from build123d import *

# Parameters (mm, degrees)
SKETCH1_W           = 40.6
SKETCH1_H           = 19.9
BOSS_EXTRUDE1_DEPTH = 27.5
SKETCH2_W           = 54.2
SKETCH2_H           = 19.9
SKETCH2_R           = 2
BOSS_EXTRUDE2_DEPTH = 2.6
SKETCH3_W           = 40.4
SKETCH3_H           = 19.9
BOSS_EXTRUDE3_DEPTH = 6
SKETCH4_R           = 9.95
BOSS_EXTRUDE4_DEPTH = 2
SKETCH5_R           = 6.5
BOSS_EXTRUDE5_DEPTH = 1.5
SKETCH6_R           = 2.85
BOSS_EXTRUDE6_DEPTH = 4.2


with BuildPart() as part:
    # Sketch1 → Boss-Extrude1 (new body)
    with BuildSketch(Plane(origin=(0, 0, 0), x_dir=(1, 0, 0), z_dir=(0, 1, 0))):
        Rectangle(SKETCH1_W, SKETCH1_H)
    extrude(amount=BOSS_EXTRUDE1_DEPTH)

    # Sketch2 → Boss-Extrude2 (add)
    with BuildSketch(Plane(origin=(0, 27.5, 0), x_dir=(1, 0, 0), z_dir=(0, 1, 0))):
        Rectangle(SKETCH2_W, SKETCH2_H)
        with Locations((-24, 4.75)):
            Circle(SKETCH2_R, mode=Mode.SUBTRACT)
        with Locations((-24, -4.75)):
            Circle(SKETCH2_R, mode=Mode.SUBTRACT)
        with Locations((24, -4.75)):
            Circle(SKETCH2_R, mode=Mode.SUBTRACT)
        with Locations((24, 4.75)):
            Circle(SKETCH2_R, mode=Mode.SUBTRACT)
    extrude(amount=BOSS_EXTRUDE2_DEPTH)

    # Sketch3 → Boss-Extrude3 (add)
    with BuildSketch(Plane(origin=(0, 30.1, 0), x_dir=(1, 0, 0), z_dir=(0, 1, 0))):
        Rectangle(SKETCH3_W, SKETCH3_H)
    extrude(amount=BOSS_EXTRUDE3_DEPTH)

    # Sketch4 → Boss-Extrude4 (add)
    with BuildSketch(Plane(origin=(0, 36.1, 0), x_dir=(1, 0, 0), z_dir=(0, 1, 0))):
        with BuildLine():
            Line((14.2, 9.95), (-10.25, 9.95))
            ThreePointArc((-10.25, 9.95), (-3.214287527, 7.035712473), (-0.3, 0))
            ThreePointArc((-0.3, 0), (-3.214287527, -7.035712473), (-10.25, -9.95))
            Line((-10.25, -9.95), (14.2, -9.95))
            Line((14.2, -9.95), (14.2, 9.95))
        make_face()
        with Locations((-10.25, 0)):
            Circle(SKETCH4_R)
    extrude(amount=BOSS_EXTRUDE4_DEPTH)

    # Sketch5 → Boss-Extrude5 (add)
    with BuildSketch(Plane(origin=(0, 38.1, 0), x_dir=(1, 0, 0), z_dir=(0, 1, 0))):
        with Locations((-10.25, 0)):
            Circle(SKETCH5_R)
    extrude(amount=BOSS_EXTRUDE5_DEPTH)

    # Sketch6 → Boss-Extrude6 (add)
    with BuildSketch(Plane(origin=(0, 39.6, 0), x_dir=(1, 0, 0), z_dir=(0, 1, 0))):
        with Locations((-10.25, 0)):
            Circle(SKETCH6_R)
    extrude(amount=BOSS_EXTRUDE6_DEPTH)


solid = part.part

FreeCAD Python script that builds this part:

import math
import FreeCAD as App
import Part
import Sketcher

V = App.Vector
Q = App.Units.Quantity


def add_polygon(sketch, points):
    """Adds a closed chain of lines whose ends are joined by coincident constraints."""
    first, n = sketch.GeometryCount, len(points)
    for a, b in zip(points, points[1:] + points[:1]):
        sketch.addGeometry(Part.LineSegment(App.Vector(*a, 0), App.Vector(*b, 0)), False)
    for i in range(n):
        sketch.addConstraint(Sketcher.Constraint("Coincident", first + i, 2, first + (i + 1) % n, 1))

doc = App.newDocument("Part")
body = doc.addObject("PartDesign::Body", "Body")

sketch1 = doc.addObject("Sketcher::SketchObject", "Sketch")
body.addObject(sketch1)
sketch1.AttachmentSupport = (doc.XZ_Plane, [""])
sketch1.MapMode = "FlatFace"
add_polygon(sketch1, [(-20, -10), (-20, 10), (20, 10), (20, -10)])
sketch1.addConstraint([
    Sketcher.Constraint("Vertical", 0),
    Sketcher.Constraint("Horizontal", 1),
    Sketcher.Constraint("Vertical", 2),
    Sketcher.Constraint("Horizontal", 3),
    Sketcher.Constraint("Symmetric", 0, 2, 2, 2, -1, 1),
    Sketcher.Constraint("DistanceX", 1, 1, 1, 2, Q("40.6 mm")),
    Sketcher.Constraint("DistanceY", 0, 1, 0, 2, Q("19.9 mm")),
])
pad1 = doc.addObject("PartDesign::Pad", "Pad")
body.addObject(pad1)
pad1.Profile = sketch1
pad1.Length = 27.5
pad1.Reversed = True

sketch2 = doc.addObject("Sketcher::SketchObject", "Sketch001")
body.addObject(sketch2)
sketch2.AttachmentSupport = (doc.XZ_Plane, [""])
sketch2.MapMode = "FlatFace"
sketch2.AttachmentOffset = App.Placement(V(0, 0, -27.5), App.Rotation())
add_polygon(sketch2, [(-27.1, -9.9), (-27.1, 9.9), (27.1, 9.9), (27.1, -9.9)])
sketch2.addGeometry(Part.Circle(V(-24, 4.8, 0), V(0, 0, 1), 2), False)
sketch2.addGeometry(Part.Circle(V(24, 4.8, 0), V(0, 0, 1), 2), False)
sketch2.addGeometry(Part.Circle(V(-24, -4.8, 0), V(0, 0, 1), 2), False)
sketch2.addGeometry(Part.Circle(V(24, -4.8, 0), V(0, 0, 1), 2), False)
sketch2.addConstraint([
    Sketcher.Constraint("Vertical", 0),
    Sketcher.Constraint("Horizontal", 1),
    Sketcher.Constraint("Vertical", 2),
    Sketcher.Constraint("Horizontal", 3),
    Sketcher.Constraint("Equal", 4, 5),
    Sketcher.Constraint("Equal", 5, 6),
    Sketcher.Constraint("Equal", 6, 7),
    Sketcher.Constraint("Symmetric", 5, 3, 6, 3, -1, 1),
    Sketcher.Constraint("Symmetric", 4, 3, 7, 3, -1, 1),
    Sketcher.Constraint("Symmetric", 0, 2, 2, 2, -1, 1),
    Sketcher.Constraint("Symmetric", 4, 3, 5, 3, -2),
    Sketcher.Constraint("Diameter", 4, Q("4 mm")),
    Sketcher.Constraint("DistanceX", 1, 1, 1, 2, Q("54.2 mm")),
    Sketcher.Constraint("DistanceY", 0, 1, 0, 2, Q("19.9 mm")),
    Sketcher.Constraint("DistanceX", 4, 3, -1, 1, Q("24 mm")),
    Sketcher.Constraint("DistanceY", 6, 3, 4, 3, Q("9.5 mm")),
])
pad2 = doc.addObject("PartDesign::Pad", "Pad001")
body.addObject(pad2)
pad2.Profile = sketch2
pad2.Length = 2.6
pad2.Reversed = True

sketch3 = doc.addObject("Sketcher::SketchObject", "Sketch002")
body.addObject(sketch3)
sketch3.AttachmentSupport = (doc.XZ_Plane, [""])
sketch3.MapMode = "FlatFace"
sketch3.AttachmentOffset = App.Placement(V(0, 0, -30.1), App.Rotation())
add_polygon(sketch3, [(-20, -10), (-20, 10), (20, 10), (20, -10)])
sketch3.addConstraint([
    Sketcher.Constraint("Vertical", 0),
    Sketcher.Constraint("Horizontal", 1),
    Sketcher.Constraint("Vertical", 2),
    Sketcher.Constraint("Horizontal", 3),
    Sketcher.Constraint("Symmetric", 0, 2, 2, 2, -1, 1),
    Sketcher.Constraint("DistanceX", 1, 1, 1, 2, Q("40.4 mm")),
    Sketcher.Constraint("DistanceY", 0, 1, 0, 2, Q("19.9 mm")),
])
pad3 = doc.addObject("PartDesign::Pad", "Pad002")
body.addObject(pad3)
pad3.Profile = sketch3
pad3.Length = 6
pad3.Reversed = True

sketch4 = doc.addObject("Sketcher::SketchObject", "Sketch003")
body.addObject(sketch4)
sketch4.AttachmentSupport = (doc.XZ_Plane, [""])
sketch4.MapMode = "FlatFace"
sketch4.AttachmentOffset = App.Placement(V(0, 0, -36.1), App.Rotation())
sketch4.addGeometry([
    Part.LineSegment(V(14, -10, 0), V(-10, -10, 0)),
    Part.ArcOfCircle(Part.Circle(V(-10, 0, 0), V(0, 0, 1), 10), math.radians(90), math.radians(270)),
    Part.LineSegment(V(-10, 10, 0), V(14, 10, 0)),
    Part.LineSegment(V(14, 10, 0), V(14, -10, 0)),
], False)
sketch4.addConstraint([
    Sketcher.Constraint("Tangent", 0, 2, 1, 2),
    Sketcher.Constraint("Tangent", 1, 1, 2, 1),
    Sketcher.Constraint("Coincident", 2, 2, 3, 1),
    Sketcher.Constraint("Coincident", 3, 2, 0, 1),
    Sketcher.Constraint("Horizontal", 0),
    Sketcher.Constraint("Horizontal", 2),
    Sketcher.Constraint("Vertical", 3),
    Sketcher.Constraint("PointOnObject", 1, 3, -1),
    Sketcher.Constraint("Radius", 1, Q("9.95 mm")),
    Sketcher.Constraint("DistanceX", 0, 2, 0, 1, Q("24.45 mm")),
    Sketcher.Constraint("DistanceX", -1, 1, 2, 2, Q("14.2 mm")),
])
pad4 = doc.addObject("PartDesign::Pad", "Pad003")
body.addObject(pad4)
pad4.Profile = sketch4
pad4.Length = 2
pad4.Reversed = True

sketch5 = doc.addObject("Sketcher::SketchObject", "Sketch004")
body.addObject(sketch5)
sketch5.AttachmentSupport = (doc.XZ_Plane, [""])
sketch5.MapMode = "FlatFace"
sketch5.AttachmentOffset = App.Placement(V(0, 0, -38.1), App.Rotation())
sketch5.addGeometry(Part.Circle(V(-10, 0, 0), V(0, 0, 1), 6), False)
sketch5.addConstraint([
    Sketcher.Constraint("PointOnObject", 0, 3, -1),
    Sketcher.Constraint("Diameter", 0, Q("13 mm")),
    Sketcher.Constraint("DistanceX", 0, 3, -1, 1, Q("10.25 mm")),
])
pad5 = doc.addObject("PartDesign::Pad", "Pad004")
body.addObject(pad5)
pad5.Profile = sketch5
pad5.Length = 1.5
pad5.Reversed = True

sketch6 = doc.addObject("Sketcher::SketchObject", "Sketch005")
body.addObject(sketch6)
sketch6.AttachmentSupport = (doc.XZ_Plane, [""])
sketch6.MapMode = "FlatFace"
sketch6.AttachmentOffset = App.Placement(V(0, 0, -39.6), App.Rotation())
sketch6.addGeometry(Part.Circle(V(-10.2, 0, 0), V(0, 0, 1), 2.9), False)
sketch6.addConstraint([
    Sketcher.Constraint("PointOnObject", 0, 3, -1),
    Sketcher.Constraint("Diameter", 0, Q("5.7 mm")),
    Sketcher.Constraint("DistanceX", 0, 3, -1, 1, Q("10.25 mm")),
])
pad6 = doc.addObject("PartDesign::Pad", "Pad005")
body.addObject(pad6)
pad6.Profile = sketch6
pad6.Length = 4.2
pad6.Reversed = True

doc.recompute()
